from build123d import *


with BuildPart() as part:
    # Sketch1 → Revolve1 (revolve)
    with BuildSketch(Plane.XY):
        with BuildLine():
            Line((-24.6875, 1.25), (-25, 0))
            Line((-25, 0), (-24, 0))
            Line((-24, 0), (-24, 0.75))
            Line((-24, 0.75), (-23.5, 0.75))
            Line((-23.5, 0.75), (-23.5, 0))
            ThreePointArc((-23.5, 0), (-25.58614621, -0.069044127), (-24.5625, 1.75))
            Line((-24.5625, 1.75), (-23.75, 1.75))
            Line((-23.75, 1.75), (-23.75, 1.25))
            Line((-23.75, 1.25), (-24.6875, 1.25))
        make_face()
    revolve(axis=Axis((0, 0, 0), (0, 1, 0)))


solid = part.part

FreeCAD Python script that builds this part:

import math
import FreeCAD as App
import Part
import Sketcher

doc = App.newDocument("Part")
body = doc.addObject("PartDesign::Body", "Body")

# Sketch on XY plane
sketch1 = body.newObject("Sketcher::SketchObject", "Sketch")
sketch1.AttachmentSupport = (doc.getObject("XY_Plane"), [""])
sketch1.MapMode = "FlatFace"
sketch1.addGeometry(Part.LineSegment(App.Vector(-25, 0, 0), App.Vector(-24.7, 1.2, 0)), False)
sketch1.addGeometry(Part.LineSegment(App.Vector(-24.7, 1.2, 0), App.Vector(-23.8, 1.2, 0)), False)
sketch1.addGeometry(Part.LineSegment(App.Vector(-23.8, 1.2, 0), App.Vector(-23.8, 1.8, 0)), False)
sketch1.addGeometry(Part.LineSegment(App.Vector(-23.8, 1.8, 0), App.Vector(-24.6, 1.8, 0)), False)
sketch1.addGeometry(Part.ArcOfCircle(Part.Circle(App.Vector(-24.6, 0.6, 0), App.Vector(0, 0, 1), 1.2), math.radians(90), math.radians(333)), False)
sketch1.addGeometry(Part.LineSegment(App.Vector(-23.5, 0, 0), App.Vector(-23.5, 0.8, 0)), False)
sketch1.addGeometry(Part.LineSegment(App.Vector(-23.5, 0.8, 0), App.Vector(-24, 0.8, 0)), False)
sketch1.addGeometry(Part.LineSegment(App.Vector(-24, 0.8, 0), App.Vector(-24, 0, 0)), False)
sketch1.addGeometry(Part.LineSegment(App.Vector(-24, 0, 0), App.Vector(-25, 0, 0)), False)
sketch1.addConstraint(Sketcher.Constraint("Coincident", 0, 2, 1, 1))
sketch1.addConstraint(Sketcher.Constraint("Coincident", 1, 2, 2, 1))
sketch1.addConstraint(Sketcher.Constraint("Coincident", 2, 2, 3, 1))
sketch1.addConstraint(Sketcher.Constraint("Tangent", 3, 2, 4, 1))
sketch1.addConstraint(Sketcher.Constraint("Coincident", 4, 2, 5, 1))
sketch1.addConstraint(Sketcher.Constraint("Coincident", 5, 2, 6, 1))
sketch1.addConstraint(Sketcher.Constraint("Coincident", 6, 2, 7, 1))
sketch1.addConstraint(Sketcher.Constraint("Coincident", 7, 2, 8, 1))
sketch1.addConstraint(Sketcher.Constraint("Coincident", 8, 2, 0, 1))
sketch1.addConstraint(Sketcher.Constraint("Horizontal", 1))
sketch1.addConstraint(Sketcher.Constraint("Vertical", 2))
sketch1.addConstraint(Sketcher.Constraint("Horizontal", 3))
sketch1.addConstraint(Sketcher.Constraint("Vertical", 5))
sketch1.addConstraint(Sketcher.Constraint("Horizontal", 6))
sketch1.addConstraint(Sketcher.Constraint("Vertical", 7))
sketch1.addConstraint(Sketcher.Constraint("Horizontal", 8))
sketch1.addConstraint(Sketcher.Constraint("PointOnObject", 4, 2, -1))
sketch1.addConstraint(Sketcher.Constraint("PointOnObject", 7, 2, -1))
sketch1.addConstraint(Sketcher.Constraint("Equal", 6, 2))
sketch1.addConstraint(Sketcher.Constraint("DistanceX", 8, 2, 8, 1, 1.0))
sketch1.addConstraint(Sketcher.Constraint("DistanceX", 6, 2, 6, 1, 0.5))
sketch1.addConstraint(Sketcher.Constraint("DistanceX", 6, 2, -1, 1, 24.0))
sketch1.addConstraint(Sketcher.Constraint("DistanceY", 5, 2, 2, 2, 1.0))
sketch1.addConstraint(Sketcher.Constraint("DistanceY", 5, 1, 5, 2, 0.75))
sketch1.addConstraint(Sketcher.Constraint("DistanceX", 1, 2, -1, 1, 23.75))
sketch1.addConstraint(Sketcher.Constraint("DistanceX", 1, 1, 1, 2, 0.9375))
sketch1.addConstraint(Sketcher.Constraint("DistanceX", 3, 2, 3, 1, 0.8125))
revolution = body.newObject("PartDesign::Revolution", "Revolution")
revolution.Profile = sketch1
revolution.ReferenceAxis = (sketch1, ["V_Axis"])
revolution.Angle = 360

doc.recompute()
